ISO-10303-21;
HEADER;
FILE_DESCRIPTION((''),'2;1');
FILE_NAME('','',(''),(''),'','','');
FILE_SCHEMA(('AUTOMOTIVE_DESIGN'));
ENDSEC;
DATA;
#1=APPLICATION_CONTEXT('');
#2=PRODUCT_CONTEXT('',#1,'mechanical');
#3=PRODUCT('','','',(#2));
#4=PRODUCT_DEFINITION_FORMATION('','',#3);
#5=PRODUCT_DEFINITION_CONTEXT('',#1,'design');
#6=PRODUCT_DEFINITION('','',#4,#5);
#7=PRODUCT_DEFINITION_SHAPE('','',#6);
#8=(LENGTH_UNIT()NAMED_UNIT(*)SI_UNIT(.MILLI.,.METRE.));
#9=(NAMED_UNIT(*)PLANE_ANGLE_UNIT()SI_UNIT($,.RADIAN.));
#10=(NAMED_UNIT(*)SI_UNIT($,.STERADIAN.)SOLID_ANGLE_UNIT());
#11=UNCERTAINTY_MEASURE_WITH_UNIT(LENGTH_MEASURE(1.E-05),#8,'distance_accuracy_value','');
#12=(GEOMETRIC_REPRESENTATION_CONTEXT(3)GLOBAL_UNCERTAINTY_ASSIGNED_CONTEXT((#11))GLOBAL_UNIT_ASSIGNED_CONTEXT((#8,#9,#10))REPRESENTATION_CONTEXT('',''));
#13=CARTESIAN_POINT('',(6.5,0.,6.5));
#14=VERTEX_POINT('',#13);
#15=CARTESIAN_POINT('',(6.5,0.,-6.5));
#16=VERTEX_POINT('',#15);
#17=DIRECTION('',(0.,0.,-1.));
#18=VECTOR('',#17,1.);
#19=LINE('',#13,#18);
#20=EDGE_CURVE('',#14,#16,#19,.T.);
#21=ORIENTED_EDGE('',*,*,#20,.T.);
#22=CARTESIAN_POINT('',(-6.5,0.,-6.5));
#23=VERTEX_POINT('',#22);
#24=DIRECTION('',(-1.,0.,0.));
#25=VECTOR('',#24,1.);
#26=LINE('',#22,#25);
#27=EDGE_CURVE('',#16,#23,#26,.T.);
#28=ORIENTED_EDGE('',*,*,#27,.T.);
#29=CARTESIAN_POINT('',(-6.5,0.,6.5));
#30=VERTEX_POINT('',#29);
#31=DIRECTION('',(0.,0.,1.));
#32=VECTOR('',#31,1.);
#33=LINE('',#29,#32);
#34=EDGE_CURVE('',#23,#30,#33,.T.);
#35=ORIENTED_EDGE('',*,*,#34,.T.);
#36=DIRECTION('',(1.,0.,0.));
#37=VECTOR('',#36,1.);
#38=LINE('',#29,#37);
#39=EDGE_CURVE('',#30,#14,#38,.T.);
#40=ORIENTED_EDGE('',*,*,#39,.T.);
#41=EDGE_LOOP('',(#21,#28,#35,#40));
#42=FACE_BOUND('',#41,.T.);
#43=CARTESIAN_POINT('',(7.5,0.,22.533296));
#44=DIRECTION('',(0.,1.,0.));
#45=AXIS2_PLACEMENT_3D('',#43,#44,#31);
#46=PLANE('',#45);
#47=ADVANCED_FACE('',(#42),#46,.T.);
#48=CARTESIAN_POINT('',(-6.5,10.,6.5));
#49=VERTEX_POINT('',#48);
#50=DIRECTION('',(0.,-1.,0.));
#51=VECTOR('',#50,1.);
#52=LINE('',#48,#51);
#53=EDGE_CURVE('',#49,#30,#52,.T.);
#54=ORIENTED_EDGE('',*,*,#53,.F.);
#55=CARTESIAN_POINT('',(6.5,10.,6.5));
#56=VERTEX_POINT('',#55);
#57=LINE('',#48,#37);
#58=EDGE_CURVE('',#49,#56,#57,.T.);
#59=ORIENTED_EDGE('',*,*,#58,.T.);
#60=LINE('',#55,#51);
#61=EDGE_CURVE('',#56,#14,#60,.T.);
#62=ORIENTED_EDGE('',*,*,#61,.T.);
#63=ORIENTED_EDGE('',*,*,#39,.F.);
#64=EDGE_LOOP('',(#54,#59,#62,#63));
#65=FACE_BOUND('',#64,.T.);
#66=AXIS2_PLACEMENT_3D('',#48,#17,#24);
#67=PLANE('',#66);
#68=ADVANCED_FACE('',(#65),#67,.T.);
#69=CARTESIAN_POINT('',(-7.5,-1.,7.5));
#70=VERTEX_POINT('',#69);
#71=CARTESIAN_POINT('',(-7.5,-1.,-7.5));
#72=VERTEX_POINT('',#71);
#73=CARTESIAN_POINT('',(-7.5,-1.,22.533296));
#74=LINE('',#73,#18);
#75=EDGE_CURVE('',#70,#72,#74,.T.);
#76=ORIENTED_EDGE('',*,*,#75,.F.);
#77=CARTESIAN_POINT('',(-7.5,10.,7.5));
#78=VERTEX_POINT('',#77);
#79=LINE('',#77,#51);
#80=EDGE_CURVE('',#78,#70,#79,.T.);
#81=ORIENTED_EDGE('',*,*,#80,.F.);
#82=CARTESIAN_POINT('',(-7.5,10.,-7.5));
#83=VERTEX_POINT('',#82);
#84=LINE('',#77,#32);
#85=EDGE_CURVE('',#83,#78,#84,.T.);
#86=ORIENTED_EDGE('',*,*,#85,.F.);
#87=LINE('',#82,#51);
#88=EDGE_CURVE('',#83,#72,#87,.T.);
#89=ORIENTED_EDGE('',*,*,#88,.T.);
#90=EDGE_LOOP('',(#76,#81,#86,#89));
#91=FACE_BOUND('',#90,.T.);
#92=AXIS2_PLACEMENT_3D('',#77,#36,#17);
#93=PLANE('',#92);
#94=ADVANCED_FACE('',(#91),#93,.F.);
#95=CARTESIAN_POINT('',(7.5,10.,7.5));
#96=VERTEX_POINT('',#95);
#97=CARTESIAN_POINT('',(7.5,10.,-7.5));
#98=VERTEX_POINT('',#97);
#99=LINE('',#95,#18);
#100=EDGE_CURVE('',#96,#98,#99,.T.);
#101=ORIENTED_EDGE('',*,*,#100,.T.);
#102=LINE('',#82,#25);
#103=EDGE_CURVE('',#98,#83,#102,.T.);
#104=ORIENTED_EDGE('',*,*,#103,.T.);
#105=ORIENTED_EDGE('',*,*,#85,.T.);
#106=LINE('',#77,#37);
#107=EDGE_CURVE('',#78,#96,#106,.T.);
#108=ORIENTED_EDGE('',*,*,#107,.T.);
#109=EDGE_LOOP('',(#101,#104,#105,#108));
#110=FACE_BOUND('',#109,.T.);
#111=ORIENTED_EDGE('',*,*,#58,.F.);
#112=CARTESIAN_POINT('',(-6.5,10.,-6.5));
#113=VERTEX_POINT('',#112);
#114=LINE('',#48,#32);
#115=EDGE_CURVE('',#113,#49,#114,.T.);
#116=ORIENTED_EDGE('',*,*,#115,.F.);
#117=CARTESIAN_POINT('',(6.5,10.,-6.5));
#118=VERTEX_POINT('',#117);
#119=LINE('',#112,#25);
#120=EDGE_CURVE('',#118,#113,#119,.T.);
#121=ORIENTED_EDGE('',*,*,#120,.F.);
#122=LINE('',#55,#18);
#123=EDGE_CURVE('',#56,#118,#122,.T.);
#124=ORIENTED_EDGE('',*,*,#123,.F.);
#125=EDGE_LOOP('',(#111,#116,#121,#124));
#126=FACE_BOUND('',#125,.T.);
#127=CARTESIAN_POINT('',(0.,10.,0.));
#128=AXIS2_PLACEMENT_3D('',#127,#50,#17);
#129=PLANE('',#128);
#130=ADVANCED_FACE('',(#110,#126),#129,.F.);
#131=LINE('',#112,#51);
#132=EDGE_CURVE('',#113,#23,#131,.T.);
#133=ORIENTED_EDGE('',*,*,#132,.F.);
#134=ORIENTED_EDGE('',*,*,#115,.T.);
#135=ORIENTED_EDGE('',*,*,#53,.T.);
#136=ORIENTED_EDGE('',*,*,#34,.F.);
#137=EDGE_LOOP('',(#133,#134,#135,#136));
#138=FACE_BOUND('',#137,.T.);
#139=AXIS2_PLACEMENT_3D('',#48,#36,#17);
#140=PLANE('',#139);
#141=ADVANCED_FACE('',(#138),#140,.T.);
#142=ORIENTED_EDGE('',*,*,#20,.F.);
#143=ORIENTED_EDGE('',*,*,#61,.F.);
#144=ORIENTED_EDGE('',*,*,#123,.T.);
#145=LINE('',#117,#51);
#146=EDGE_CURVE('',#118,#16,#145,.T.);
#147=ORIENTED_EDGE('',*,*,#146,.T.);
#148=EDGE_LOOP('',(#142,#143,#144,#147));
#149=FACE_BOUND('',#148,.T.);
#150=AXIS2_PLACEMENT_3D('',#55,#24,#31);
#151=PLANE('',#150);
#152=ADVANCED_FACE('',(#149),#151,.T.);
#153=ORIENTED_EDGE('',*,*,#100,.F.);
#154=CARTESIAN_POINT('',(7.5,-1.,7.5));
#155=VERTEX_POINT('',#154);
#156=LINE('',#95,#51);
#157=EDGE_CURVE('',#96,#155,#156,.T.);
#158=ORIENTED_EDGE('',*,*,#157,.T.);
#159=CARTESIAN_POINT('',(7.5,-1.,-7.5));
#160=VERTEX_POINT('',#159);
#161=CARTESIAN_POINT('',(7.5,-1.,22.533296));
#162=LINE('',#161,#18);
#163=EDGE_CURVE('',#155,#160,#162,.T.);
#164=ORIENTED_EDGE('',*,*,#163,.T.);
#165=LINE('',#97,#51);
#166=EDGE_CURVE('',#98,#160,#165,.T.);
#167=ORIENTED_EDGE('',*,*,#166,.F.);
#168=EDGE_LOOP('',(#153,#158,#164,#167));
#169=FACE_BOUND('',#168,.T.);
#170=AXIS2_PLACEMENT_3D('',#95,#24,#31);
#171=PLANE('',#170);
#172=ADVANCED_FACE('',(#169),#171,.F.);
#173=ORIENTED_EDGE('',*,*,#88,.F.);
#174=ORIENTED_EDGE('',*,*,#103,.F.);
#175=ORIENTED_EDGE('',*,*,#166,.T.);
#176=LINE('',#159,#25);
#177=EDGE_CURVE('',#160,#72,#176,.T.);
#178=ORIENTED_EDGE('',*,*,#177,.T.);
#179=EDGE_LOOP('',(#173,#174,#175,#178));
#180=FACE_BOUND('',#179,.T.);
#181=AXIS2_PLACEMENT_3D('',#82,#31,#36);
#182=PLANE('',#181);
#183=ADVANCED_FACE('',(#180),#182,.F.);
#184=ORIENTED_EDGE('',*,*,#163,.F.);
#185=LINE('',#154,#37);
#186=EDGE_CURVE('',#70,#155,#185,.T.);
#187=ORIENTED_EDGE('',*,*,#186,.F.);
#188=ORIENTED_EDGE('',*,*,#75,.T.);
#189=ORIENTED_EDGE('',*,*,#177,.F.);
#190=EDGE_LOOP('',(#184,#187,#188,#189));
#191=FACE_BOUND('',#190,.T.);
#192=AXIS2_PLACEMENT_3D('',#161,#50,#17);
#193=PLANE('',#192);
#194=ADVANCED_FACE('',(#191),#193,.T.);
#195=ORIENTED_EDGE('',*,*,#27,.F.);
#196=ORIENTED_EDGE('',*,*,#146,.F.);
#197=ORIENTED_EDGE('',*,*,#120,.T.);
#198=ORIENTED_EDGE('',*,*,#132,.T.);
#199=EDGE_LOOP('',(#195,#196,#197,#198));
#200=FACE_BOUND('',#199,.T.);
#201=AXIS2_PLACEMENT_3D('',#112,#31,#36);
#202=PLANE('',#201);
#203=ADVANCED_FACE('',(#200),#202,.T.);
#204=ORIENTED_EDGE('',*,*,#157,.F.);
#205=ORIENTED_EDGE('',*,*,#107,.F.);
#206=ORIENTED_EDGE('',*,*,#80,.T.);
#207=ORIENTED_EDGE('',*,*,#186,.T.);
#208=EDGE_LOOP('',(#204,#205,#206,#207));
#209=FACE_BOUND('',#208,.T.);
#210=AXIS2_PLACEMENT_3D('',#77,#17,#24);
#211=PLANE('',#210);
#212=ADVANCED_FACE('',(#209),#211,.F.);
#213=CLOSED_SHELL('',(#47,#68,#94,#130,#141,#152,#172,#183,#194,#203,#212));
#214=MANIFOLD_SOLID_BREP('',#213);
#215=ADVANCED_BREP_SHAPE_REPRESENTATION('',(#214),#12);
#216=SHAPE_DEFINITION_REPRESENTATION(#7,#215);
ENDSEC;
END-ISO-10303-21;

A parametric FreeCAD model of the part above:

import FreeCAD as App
import Part
import Sketcher

V = App.Vector
Q = App.Units.Quantity

doc = App.newDocument("Part")
params = doc.addObject("Spreadsheet::Sheet", "Params")
for row, (alias, value) in enumerate([
    ("sketch1_width", "15 mm"),
    ("sketch1_width2", "13 mm"),
    ("pad1_length", "10 mm"),
    ("sketch2_width", "15 mm"),
    ("sketch2_height", "1 mm"),
    ("pad2_length", "15 mm"),
], start=1):
    params.set(f"A{row}", alias)
    params.set(f"B{row}", "=" + value)
    params.setAlias(f"B{row}", alias)

body = doc.addObject("PartDesign::Body", "Body")

# Sketch on XZ plane
sketch1 = body.newObject("Sketcher::SketchObject", "Sketch")
sketch1.AttachmentSupport = (doc.getObject("XZ_Plane"), [""])
sketch1.MapMode = "FlatFace"
sketch1.addGeometry([
    Part.LineSegment(V(-7.5, -7.5, 0), V(-7.5, 7.5, 0)),  # 0
    Part.LineSegment(V(-7.5, 7.5, 0), V(7.5, 7.5, 0)),  # 1
    Part.LineSegment(V(7.5, 7.5, 0), V(7.5, -7.5, 0)),  # 2
    Part.LineSegment(V(7.5, -7.5, 0), V(-7.5, -7.5, 0)),  # 3
    Part.LineSegment(V(6.5, 6.5, 0), V(-6.5, 6.5, 0)),  # 4
    Part.LineSegment(V(-6.5, 6.5, 0), V(-6.5, -6.5, 0)),  # 5
    Part.LineSegment(V(-6.5, -6.5, 0), V(6.5, -6.5, 0)),  # 6
    Part.LineSegment(V(6.5, -6.5, 0), V(6.5, 6.5, 0)),  # 7
], False)
sketch1.addConstraint([
    Sketcher.Constraint("Coincident", 0, 2, 1, 1),
    Sketcher.Constraint("Coincident", 1, 2, 2, 1),
    Sketcher.Constraint("Coincident", 2, 2, 3, 1),
    Sketcher.Constraint("Coincident", 3, 2, 0, 1),
    Sketcher.Constraint("Coincident", 4, 2, 5, 1),
    Sketcher.Constraint("Coincident", 5, 2, 6, 1),
    Sketcher.Constraint("Coincident", 6, 2, 7, 1),
    Sketcher.Constraint("Coincident", 7, 2, 4, 1),
    Sketcher.Constraint("Vertical", 0),
    Sketcher.Constraint("Horizontal", 1),
    Sketcher.Constraint("Vertical", 2),
    Sketcher.Constraint("Horizontal", 3),
    Sketcher.Constraint("Horizontal", 4),
    Sketcher.Constraint("Vertical", 5),
    Sketcher.Constraint("Horizontal", 6),
    Sketcher.Constraint("Vertical", 7),
    Sketcher.Constraint("Symmetric", 0, 2, 2, 2, -1, 1),
    Sketcher.Constraint("Symmetric", 4, 2, 6, 2, -1, 1),
    Sketcher.Constraint("Equal", 3, 0),
    Sketcher.Constraint("Equal", 6, 5),
    Sketcher.Constraint("DistanceX", 1, 1, 1, 2, Q("15 mm")),
    Sketcher.Constraint("DistanceX", 4, 2, 4, 1, Q("13 mm")),
])
sketch1.setExpression("Constraints[20]", "Params.sketch1_width")
sketch1.setExpression("Constraints[21]", "Params.sketch1_width2")
pad1 = body.newObject("PartDesign::Pad", "Pad")
pad1.Profile = sketch1
pad1.setExpression("Length", "Params.pad1_length")
pad1.Reversed = True

# Sketch on XY plane
sketch2 = body.newObject("Sketcher::SketchObject", "Sketch001")
sketch2.AttachmentSupport = (doc.getObject("XY_Plane"), [""])
sketch2.MapMode = "FlatFace"
sketch2.AttachmentOffset = App.Placement(V(0, 0, -7.5), App.Rotation())
sketch2.addGeometry([
    Part.LineSegment(V(7.5, 0, 0), V(7.5, -1, 0)),
    Part.LineSegment(V(7.5, -1, 0), V(-7.5, -1, 0)),
    Part.LineSegment(V(-7.5, -1, 0), V(-7.5, 0, 0)),
    Part.LineSegment(V(-7.5, 0, 0), V(7.5, 0, 0)),
], False)
sketch2.addConstraint([
    Sketcher.Constraint("Coincident", 0, 2, 1, 1),
    Sketcher.Constraint("Coincident", 1, 2, 2, 1),
    Sketcher.Constraint("Coincident", 2, 2, 3, 1),
    Sketcher.Constraint("Coincident", 3, 2, 0, 1),
    Sketcher.Constraint("Vertical", 0),
    Sketcher.Constraint("Horizontal", 1),
    Sketcher.Constraint("Vertical", 2),
    Sketcher.Constraint("Horizontal", 3),
    Sketcher.Constraint("Symmetric", 2, 2, 3, 2, -1, 1),
    Sketcher.Constraint("DistanceX", 1, 2, 1, 1, Q("15 mm")),
    Sketcher.Constraint("DistanceY", 0, 2, 0, 1, Q("1 mm")),
])
sketch2.setExpression("Constraints[9]", "Params.sketch2_width")
sketch2.setExpression("Constraints[10]", "Params.sketch2_height")
pad2 = body.newObject("PartDesign::Pad", "Pad001")
pad2.Profile = sketch2
pad2.setExpression("Length", "Params.pad2_length")

doc.recompute()
